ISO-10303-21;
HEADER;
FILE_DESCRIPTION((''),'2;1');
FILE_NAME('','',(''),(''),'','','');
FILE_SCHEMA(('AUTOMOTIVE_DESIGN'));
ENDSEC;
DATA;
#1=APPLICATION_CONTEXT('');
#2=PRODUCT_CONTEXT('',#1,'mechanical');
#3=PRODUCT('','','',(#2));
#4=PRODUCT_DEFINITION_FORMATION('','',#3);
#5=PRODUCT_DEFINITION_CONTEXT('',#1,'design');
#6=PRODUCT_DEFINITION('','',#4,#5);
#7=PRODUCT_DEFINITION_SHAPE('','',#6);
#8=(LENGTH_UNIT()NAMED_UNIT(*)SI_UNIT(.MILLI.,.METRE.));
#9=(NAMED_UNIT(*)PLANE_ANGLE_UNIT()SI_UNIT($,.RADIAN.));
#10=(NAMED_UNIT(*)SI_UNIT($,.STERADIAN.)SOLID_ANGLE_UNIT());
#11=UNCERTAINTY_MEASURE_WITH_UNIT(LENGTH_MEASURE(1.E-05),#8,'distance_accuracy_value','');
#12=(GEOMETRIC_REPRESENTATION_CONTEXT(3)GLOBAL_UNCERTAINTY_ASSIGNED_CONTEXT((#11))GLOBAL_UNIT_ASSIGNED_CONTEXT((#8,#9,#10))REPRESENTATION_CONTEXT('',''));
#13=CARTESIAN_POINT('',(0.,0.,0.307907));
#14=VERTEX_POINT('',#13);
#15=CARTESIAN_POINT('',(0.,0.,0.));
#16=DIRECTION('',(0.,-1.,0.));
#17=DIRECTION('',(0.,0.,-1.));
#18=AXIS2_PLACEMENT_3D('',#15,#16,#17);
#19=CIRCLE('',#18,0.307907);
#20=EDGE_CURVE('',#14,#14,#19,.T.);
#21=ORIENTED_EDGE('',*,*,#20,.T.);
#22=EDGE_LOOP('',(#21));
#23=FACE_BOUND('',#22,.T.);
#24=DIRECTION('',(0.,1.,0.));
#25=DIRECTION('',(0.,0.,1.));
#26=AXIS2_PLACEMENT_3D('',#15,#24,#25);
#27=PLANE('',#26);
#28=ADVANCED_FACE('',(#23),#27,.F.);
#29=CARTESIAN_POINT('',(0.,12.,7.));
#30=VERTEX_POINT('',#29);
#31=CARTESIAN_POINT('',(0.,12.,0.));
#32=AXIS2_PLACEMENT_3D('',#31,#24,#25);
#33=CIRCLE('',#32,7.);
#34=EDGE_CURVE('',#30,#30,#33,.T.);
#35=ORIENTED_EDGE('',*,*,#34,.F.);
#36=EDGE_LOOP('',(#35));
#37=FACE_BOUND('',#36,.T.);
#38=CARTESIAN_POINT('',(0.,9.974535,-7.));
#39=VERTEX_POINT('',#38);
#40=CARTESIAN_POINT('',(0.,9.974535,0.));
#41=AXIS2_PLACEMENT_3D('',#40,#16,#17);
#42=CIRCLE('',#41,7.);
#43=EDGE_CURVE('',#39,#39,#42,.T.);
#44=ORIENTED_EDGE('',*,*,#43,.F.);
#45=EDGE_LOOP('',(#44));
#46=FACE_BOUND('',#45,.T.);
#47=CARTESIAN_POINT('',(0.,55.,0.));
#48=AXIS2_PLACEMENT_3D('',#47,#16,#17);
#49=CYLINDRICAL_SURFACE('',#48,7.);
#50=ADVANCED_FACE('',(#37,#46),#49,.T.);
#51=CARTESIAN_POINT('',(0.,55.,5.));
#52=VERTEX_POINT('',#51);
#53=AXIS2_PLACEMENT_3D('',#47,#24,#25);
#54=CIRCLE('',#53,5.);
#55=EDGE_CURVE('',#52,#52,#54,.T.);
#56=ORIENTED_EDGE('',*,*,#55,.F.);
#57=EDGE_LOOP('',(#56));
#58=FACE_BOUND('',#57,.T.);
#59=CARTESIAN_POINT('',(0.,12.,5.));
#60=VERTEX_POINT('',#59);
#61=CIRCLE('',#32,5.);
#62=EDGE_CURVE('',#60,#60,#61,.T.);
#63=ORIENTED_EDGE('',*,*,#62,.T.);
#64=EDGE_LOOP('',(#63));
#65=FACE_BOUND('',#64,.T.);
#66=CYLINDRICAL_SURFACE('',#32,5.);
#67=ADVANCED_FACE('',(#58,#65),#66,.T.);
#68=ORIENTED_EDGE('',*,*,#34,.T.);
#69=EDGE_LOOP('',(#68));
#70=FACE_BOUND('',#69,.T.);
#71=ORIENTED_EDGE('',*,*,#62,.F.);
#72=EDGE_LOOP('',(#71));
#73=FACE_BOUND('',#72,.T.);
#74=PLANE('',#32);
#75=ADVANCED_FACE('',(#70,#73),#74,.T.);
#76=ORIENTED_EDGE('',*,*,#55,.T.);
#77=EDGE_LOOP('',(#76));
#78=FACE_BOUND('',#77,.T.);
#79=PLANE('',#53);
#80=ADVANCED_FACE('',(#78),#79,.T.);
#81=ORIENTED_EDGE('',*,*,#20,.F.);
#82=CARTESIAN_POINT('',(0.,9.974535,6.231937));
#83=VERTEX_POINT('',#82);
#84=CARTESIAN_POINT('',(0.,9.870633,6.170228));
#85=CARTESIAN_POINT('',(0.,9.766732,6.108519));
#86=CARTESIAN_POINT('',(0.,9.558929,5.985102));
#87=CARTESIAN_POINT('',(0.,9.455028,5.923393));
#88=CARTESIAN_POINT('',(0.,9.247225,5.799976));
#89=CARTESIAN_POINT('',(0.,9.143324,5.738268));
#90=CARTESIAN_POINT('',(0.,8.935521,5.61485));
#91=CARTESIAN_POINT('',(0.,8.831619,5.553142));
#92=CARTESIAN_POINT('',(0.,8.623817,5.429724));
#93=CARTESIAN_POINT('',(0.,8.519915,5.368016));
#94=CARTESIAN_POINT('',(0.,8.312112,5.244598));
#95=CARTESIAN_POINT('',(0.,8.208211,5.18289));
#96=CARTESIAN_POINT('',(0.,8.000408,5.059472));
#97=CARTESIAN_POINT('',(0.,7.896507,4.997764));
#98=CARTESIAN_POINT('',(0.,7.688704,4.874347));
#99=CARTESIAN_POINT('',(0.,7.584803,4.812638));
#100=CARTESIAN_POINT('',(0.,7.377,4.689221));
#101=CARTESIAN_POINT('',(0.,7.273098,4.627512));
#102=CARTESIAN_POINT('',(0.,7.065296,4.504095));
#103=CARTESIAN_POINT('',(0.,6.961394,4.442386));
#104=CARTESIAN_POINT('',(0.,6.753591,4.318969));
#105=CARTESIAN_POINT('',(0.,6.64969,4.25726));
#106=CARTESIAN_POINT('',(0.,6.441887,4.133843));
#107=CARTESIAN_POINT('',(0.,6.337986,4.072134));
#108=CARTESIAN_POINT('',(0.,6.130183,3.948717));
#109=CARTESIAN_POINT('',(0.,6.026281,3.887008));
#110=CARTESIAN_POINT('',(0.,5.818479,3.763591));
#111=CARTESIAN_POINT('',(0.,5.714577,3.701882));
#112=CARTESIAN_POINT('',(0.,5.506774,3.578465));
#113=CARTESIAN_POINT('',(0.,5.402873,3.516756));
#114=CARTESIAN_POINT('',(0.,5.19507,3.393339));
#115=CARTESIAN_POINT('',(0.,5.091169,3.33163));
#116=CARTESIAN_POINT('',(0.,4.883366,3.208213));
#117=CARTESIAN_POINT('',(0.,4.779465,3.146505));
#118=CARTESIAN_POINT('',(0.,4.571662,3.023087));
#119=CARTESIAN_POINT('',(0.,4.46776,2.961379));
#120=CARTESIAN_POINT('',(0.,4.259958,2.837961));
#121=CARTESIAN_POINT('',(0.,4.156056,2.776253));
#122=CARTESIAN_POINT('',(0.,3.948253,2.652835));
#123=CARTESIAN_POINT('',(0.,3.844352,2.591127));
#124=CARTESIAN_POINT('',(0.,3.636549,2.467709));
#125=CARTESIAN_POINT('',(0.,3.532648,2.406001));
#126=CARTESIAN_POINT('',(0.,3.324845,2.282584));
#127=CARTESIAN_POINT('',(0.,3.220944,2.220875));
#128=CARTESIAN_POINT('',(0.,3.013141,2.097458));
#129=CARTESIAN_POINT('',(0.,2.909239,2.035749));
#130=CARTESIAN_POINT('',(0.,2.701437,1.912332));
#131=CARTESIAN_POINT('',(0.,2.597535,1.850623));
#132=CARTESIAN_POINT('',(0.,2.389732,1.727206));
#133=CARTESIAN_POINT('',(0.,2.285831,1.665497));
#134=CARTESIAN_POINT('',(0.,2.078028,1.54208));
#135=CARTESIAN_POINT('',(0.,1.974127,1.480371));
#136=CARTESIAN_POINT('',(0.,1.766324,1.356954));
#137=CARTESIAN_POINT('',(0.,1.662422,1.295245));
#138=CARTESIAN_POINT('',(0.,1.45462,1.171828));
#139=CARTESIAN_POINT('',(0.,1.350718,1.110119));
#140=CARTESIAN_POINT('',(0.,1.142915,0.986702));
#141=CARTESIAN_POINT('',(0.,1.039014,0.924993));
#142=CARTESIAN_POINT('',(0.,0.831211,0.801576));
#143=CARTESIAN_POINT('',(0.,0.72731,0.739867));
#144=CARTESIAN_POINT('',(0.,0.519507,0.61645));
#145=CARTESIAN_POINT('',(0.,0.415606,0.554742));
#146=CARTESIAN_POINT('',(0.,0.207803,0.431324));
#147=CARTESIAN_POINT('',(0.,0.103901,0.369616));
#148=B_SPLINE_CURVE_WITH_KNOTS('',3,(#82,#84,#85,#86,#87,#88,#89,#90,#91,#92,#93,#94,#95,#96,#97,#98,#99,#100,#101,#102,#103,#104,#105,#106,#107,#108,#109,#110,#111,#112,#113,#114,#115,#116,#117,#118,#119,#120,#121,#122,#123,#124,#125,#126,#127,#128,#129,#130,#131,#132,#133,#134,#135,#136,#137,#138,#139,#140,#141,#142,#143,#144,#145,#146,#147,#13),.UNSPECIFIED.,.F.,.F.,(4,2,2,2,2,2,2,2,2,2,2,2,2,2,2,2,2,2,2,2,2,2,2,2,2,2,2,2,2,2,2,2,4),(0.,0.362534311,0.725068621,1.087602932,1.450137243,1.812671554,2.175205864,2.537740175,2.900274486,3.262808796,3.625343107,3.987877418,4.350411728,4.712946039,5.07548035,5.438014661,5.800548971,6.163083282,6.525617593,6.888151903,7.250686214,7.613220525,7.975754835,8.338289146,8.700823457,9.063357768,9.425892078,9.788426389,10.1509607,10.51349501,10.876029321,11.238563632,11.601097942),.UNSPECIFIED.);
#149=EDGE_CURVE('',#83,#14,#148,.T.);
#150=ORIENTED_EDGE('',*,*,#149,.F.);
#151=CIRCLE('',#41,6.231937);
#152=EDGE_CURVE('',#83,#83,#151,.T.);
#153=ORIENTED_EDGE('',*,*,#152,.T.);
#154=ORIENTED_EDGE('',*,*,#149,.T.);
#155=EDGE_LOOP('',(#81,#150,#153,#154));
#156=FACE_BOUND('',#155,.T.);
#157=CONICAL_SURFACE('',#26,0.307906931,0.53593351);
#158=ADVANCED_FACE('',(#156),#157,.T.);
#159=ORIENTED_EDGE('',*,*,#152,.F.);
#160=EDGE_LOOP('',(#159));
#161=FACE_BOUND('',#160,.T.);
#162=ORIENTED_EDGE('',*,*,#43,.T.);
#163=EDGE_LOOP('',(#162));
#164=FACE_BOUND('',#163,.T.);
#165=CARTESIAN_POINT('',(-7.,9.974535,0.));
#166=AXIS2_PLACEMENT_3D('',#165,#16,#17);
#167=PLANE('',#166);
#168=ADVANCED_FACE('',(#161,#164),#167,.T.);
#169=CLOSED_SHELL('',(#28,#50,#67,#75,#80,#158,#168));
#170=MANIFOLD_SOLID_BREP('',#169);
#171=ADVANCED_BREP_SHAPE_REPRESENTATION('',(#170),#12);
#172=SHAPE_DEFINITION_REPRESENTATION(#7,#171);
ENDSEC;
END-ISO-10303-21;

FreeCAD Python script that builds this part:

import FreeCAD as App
import Part
import Sketcher
Q = App.Units.Quantity


def add_polygon(sketch, points):
    """Adds a closed chain of lines whose ends are joined by coincident constraints."""
    first, n = sketch.GeometryCount, len(points)
    for a, b in zip(points, points[1:] + points[:1]):
        sketch.addGeometry(Part.LineSegment(App.Vector(*a, 0), App.Vector(*b, 0)), False)
    for i in range(n):
        sketch.addConstraint(Sketcher.Constraint("Coincident", first + i, 2, first + (i + 1) % n, 1))

doc = App.newDocument("Part")
params = doc.addObject("Spreadsheet::Sheet", "Params")
for row, (alias, value) in enumerate([
    ("sketch1_diameter", "14 mm"),
    ("pad1_length", "55 mm"),
    ("sketch2_diameter", "14 mm"),
    ("sketch2_diameter2", "10 mm"),
    ("pocket1_length", "43 mm"),
    ("groove_angle", "360 deg"),
], start=1):
    params.set(f"A{row}", alias)
    params.set(f"B{row}", "=" + value)
    params.setAlias(f"B{row}", alias)

body = doc.addObject("PartDesign::Body", "Body")

# Sketch on XZ plane
sketch1 = doc.addObject("Sketcher::SketchObject", "Sketch")
body.addObject(sketch1)
sketch1.AttachmentSupport = (doc.XZ_Plane, [""])
sketch1.MapMode = "FlatFace"
sketch1.addGeometry(Part.Circle(App.Vector(0, 0, 0), App.Vector(0, 0, 1), 7), False)
sketch1.addConstraint(Sketcher.Constraint("Coincident", 0, 3, -1, 1))
sketch1.addConstraint(Sketcher.Constraint("Diameter", 0, Q("14 mm")))
sketch1.setExpression("Constraints[1]", "Params.sketch1_diameter")
pad1 = doc.addObject("PartDesign::Pad", "Pad")
body.addObject(pad1)
pad1.Profile = sketch1
pad1.setExpression("Length", "Params.pad1_length")
pad1.Reversed = True

# Sketch on XZ plane
sketch2 = doc.addObject("Sketcher::SketchObject", "Sketch001")
body.addObject(sketch2)
sketch2.AttachmentSupport = (doc.XZ_Plane, [""])
sketch2.MapMode = "FlatFace"
sketch2.AttachmentOffset = App.Placement(App.Vector(0, 0, -12), App.Rotation())
sketch2.addGeometry(Part.Circle(App.Vector(0, 0, 0), App.Vector(0, 0, 1), 7), False)
sketch2.addGeometry(Part.Circle(App.Vector(0, 0, 0), App.Vector(0, 0, 1), 5), False)
sketch2.addConstraint(Sketcher.Constraint("Coincident", 0, 3, -1, 1))
sketch2.addConstraint(Sketcher.Constraint("Coincident", 1, 3, -1, 1))
sketch2.addConstraint(Sketcher.Constraint("Diameter", 0, Q("14 mm")))
sketch2.addConstraint(Sketcher.Constraint("Diameter", 1, Q("10 mm")))
sketch2.setExpression("Constraints[2]", "Params.sketch2_diameter")
sketch2.setExpression("Constraints[3]", "Params.sketch2_diameter2")
pocket1 = doc.addObject("PartDesign::Pocket", "Pocket")
body.addObject(pocket1)
pocket1.Profile = sketch2
pocket1.setExpression("Length", "Params.pocket1_length")

# Sketch on XY plane
sketch3 = doc.addObject("Sketcher::SketchObject", "Sketch002")
body.addObject(sketch3)
sketch3.AttachmentSupport = (doc.XY_Plane, [""])
sketch3.MapMode = "FlatFace"
add_polygon(sketch3, [(-6.2, 10), (-7, 10), (-7, 0), (-0.3, 0)])  # lines 0-3
sketch3.addConstraint(Sketcher.Constraint("Horizontal", 0))
sketch3.addConstraint(Sketcher.Constraint("Vertical", 1))
sketch3.addConstraint(Sketcher.Constraint("Horizontal", 2))
sketch3.addConstraint(Sketcher.Constraint("PointOnObject", 1, 2, -1))
sketch3.addConstraint(Sketcher.Constraint("DistanceX", 0, 2, -1, 1, Q("7 mm")))
sketch3.addConstraint(Sketcher.Constraint("DistanceX", 0, 2, 0, 1, Q("0.768063 mm")))
sketch3.addConstraint(Sketcher.Constraint("DistanceX", 2, 1, 2, 2, Q("6.692093 mm")))
sketch3.addConstraint(Sketcher.Constraint("DistanceY", 1, 2, 1, 1, Q("9.974535 mm")))
groove = doc.addObject("PartDesign::Groove", "Groove")
body.addObject(groove)
groove.Profile = sketch3
groove.ReferenceAxis = (sketch3, ["V_Axis"])
groove.setExpression("Angle", "Params.groove_angle")

doc.recompute()
